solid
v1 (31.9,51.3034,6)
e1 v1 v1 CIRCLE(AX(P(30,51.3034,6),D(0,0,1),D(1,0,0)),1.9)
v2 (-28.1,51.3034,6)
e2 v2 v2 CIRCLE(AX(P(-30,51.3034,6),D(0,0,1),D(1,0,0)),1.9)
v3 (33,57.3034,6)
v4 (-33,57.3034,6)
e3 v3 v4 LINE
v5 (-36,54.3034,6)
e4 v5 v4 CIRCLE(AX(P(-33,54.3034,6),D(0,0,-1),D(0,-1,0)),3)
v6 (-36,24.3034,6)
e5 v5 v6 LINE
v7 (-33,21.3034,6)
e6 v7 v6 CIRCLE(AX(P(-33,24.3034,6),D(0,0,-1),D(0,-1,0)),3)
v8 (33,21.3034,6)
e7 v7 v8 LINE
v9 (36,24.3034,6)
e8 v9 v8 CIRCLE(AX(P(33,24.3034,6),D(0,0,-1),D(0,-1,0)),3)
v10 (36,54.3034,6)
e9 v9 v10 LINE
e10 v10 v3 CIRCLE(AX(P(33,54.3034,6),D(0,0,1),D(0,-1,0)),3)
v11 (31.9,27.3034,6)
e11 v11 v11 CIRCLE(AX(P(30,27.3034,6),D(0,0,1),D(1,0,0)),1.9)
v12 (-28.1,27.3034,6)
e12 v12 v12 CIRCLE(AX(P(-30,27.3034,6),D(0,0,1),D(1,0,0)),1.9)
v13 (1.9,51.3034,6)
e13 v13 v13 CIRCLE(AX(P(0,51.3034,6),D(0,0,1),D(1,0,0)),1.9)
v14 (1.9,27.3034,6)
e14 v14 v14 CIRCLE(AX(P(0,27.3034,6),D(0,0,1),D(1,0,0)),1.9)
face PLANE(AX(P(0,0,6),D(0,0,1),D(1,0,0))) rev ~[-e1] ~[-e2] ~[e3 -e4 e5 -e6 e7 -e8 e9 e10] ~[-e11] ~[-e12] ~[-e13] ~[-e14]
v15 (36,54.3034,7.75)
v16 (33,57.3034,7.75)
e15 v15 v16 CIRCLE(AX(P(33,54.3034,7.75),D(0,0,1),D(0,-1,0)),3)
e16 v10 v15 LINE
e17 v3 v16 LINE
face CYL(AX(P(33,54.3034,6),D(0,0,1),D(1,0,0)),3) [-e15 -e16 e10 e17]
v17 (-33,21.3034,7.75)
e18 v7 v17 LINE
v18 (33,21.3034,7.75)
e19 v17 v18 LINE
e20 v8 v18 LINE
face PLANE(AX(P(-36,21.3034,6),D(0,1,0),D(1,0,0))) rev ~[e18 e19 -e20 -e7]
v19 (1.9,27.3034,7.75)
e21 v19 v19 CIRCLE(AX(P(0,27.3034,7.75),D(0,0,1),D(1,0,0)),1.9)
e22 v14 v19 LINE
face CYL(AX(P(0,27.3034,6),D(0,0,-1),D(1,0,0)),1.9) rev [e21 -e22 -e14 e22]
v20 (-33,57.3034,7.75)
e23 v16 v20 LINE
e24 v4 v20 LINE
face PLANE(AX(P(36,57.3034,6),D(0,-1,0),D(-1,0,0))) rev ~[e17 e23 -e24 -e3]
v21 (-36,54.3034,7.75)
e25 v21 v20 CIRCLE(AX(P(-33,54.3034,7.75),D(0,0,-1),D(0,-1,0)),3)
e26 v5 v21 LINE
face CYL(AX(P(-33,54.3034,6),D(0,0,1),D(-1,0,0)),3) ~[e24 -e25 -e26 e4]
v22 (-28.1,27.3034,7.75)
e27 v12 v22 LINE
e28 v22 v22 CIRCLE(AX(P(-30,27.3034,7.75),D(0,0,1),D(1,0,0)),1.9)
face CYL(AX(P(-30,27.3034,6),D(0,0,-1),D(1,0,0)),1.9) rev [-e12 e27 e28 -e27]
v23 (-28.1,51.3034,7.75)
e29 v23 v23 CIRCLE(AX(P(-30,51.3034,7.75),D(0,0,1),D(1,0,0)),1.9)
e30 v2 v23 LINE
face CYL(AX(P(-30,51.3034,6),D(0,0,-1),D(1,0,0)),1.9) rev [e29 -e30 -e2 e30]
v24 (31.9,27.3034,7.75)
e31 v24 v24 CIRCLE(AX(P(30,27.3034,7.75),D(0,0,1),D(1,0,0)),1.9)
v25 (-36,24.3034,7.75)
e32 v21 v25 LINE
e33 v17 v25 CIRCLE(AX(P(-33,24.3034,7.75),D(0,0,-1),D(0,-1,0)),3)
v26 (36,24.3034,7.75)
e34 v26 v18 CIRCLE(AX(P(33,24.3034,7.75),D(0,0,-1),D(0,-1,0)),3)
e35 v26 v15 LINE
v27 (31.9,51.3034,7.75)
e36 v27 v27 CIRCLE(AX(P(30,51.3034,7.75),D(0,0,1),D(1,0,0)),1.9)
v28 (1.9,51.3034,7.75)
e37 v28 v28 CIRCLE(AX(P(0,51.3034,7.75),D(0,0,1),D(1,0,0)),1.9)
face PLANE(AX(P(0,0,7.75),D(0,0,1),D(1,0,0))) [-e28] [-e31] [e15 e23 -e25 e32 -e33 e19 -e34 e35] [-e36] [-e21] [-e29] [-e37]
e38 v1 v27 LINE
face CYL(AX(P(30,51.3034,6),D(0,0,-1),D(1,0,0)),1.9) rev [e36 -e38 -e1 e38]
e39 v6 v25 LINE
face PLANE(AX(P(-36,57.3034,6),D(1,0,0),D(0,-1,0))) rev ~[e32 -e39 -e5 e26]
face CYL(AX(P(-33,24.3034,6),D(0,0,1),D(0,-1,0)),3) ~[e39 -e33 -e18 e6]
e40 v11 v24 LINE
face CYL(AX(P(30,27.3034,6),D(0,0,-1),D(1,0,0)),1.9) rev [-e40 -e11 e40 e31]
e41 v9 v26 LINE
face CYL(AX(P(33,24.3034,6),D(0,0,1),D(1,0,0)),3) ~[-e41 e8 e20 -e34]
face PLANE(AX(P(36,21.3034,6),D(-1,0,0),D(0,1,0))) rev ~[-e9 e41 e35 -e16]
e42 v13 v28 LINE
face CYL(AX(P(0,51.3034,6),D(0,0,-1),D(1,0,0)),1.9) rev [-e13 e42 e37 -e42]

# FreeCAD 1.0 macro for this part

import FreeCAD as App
import Part
import Sketcher

V = App.Vector
Q = App.Units.Quantity


def edges_at(feature, points):
    """Names of the edges that pass closest to the given points."""
    edges = feature.Shape.Edges
    near = lambda p: min(range(len(edges)), key=lambda i: edges[i].distToShape(Part.Vertex(*p))[0])
    return sorted({f"Edge{near(p) + 1}" for p in points})


def add_polygon(sketch, points):
    """Adds a closed chain of lines whose ends are joined by coincident constraints."""
    first, n = sketch.GeometryCount, len(points)
    for a, b in zip(points, points[1:] + points[:1]):
        sketch.addGeometry(Part.LineSegment(App.Vector(*a, 0), App.Vector(*b, 0)), False)
    for i in range(n):
        sketch.addConstraint(Sketcher.Constraint("Coincident", first + i, 2, first + (i + 1) % n, 1))

doc = App.newDocument("Part")
params = doc.addObject("Spreadsheet::Sheet", "Params")
for row, (alias, value) in enumerate([
    ("sketch1_diameter", "3.8 mm"),
    ("sketch1_width", "72 mm"),
    ("sketch1_height", "36 mm"),
    ("pad1_length", "1.75 mm"),
    ("fillet_radius", "3 mm"),
], start=1):
    params.set(f"A{row}", alias)
    params.set(f"B{row}", "=" + value)
    params.setAlias(f"B{row}", alias)

body = doc.addObject("PartDesign::Body", "Body")

# Sketch on XY plane
sketch1 = body.newObject("Sketcher::SketchObject", "Sketch")
sketch1.AttachmentSupport = (doc.getObject("XY_Plane"), [""])
sketch1.MapMode = "FlatFace"
sketch1.AttachmentOffset = App.Placement(V(0, 0, 6), App.Rotation())
add_polygon(sketch1, [(36, 21.3034), (36, 57.3034), (-36, 57.3034), (-36, 21.3034)])  # lines 0-3
sketch1.addGeometry(Part.Circle(V(-30, 27.3034, 0), V(0, 0, 1), 1.9), False)  # 4
sketch1.addGeometry(Part.Circle(V(0, 27.3034, 0), V(0, 0, 1), 1.9), False)  # 5
sketch1.addGeometry(Part.Circle(V(30, 27.3034, 0), V(0, 0, 1), 1.9), False)  # 6
sketch1.addGeometry(Part.Circle(V(-30, 51.3034, 0), V(0, 0, 1), 1.9), False)  # 7
sketch1.addGeometry(Part.Circle(V(0, 51.3034, 0), V(0, 0, 1), 1.9), False)  # 8
sketch1.addGeometry(Part.Circle(V(30, 51.3034, 0), V(0, 0, 1), 1.9), False)  # 9
sketch1.addConstraint(Sketcher.Constraint("Vertical", 0))
sketch1.addConstraint(Sketcher.Constraint("Horizontal", 1))
sketch1.addConstraint(Sketcher.Constraint("Vertical", 2))
sketch1.addConstraint(Sketcher.Constraint("Horizontal", 3))
sketch1.addConstraint(Sketcher.Constraint("Equal", 4, 5))
sketch1.addConstraint(Sketcher.Constraint("Equal", 5, 6))
sketch1.addConstraint(Sketcher.Constraint("Equal", 6, 7))
sketch1.addConstraint(Sketcher.Constraint("Equal", 7, 8))
sketch1.addConstraint(Sketcher.Constraint("Equal", 8, 9))
sketch1.addConstraint(Sketcher.Constraint("Symmetric", 4, 3, 6, 3, -2))
sketch1.addConstraint(Sketcher.Constraint("Symmetric", 7, 3, 9, 3, -2))
sketch1.addConstraint(Sketcher.Constraint("PointOnObject", 5, 3, -2))
sketch1.addConstraint(Sketcher.Constraint("PointOnObject", 8, 3, -2))
sketch1.addConstraint(Sketcher.Constraint("Horizontal", 4, 3, 5, 3))
sketch1.addConstraint(Sketcher.Constraint("Horizontal", 7, 3, 8, 3))
sketch1.addConstraint(Sketcher.Constraint("Vertical", 4, 3, 7, 3))
sketch1.addConstraint(Sketcher.Constraint("DistanceX", 9, 3, 0, 2, Q("6 mm")))
sketch1.addConstraint(Sketcher.Constraint("DistanceY", 9, 3, 0, 2, Q("6 mm")))
sketch1.addConstraint(Sketcher.Constraint("DistanceX", 1, 2, 7, 3, Q("6 mm")))
sketch1.addConstraint(Sketcher.Constraint("DistanceY", 2, 2, 4, 3, Q("6 mm")))
sketch1.addConstraint(Sketcher.Constraint("Diameter", 4, Q("3.8 mm")))
sketch1.addConstraint(Sketcher.Constraint("DistanceX", 1, 2, 1, 1, Q("72 mm")))
sketch1.addConstraint(Sketcher.Constraint("DistanceY", 0, 1, 0, 2, Q("36 mm")))
sketch1.addConstraint(Sketcher.Constraint("DistanceY", -1, 1, 4, 3, Q("27.3034 mm")))
sketch1.setExpression("Constraints[24]", "Params.sketch1_diameter")
sketch1.setExpression("Constraints[25]", "Params.sketch1_width")
sketch1.setExpression("Constraints[26]", "Params.sketch1_height")
pad1 = body.newObject("PartDesign::Pad", "Pad")
pad1.Profile = sketch1
pad1.setExpression("Length", "Params.pad1_length")
doc.recompute()

fillet = body.newObject("PartDesign::Fillet", "Fillet")
fillet.Base = (pad1, edges_at(pad1, [
    (-36, 57.303, 6.875),
    (-36, 21.303, 6.875),
    (36, 57.303, 6.875),
    (36, 21.303, 6.875),
]))
fillet.setExpression("Radius", "Params.fillet_radius")

doc.recompute()
